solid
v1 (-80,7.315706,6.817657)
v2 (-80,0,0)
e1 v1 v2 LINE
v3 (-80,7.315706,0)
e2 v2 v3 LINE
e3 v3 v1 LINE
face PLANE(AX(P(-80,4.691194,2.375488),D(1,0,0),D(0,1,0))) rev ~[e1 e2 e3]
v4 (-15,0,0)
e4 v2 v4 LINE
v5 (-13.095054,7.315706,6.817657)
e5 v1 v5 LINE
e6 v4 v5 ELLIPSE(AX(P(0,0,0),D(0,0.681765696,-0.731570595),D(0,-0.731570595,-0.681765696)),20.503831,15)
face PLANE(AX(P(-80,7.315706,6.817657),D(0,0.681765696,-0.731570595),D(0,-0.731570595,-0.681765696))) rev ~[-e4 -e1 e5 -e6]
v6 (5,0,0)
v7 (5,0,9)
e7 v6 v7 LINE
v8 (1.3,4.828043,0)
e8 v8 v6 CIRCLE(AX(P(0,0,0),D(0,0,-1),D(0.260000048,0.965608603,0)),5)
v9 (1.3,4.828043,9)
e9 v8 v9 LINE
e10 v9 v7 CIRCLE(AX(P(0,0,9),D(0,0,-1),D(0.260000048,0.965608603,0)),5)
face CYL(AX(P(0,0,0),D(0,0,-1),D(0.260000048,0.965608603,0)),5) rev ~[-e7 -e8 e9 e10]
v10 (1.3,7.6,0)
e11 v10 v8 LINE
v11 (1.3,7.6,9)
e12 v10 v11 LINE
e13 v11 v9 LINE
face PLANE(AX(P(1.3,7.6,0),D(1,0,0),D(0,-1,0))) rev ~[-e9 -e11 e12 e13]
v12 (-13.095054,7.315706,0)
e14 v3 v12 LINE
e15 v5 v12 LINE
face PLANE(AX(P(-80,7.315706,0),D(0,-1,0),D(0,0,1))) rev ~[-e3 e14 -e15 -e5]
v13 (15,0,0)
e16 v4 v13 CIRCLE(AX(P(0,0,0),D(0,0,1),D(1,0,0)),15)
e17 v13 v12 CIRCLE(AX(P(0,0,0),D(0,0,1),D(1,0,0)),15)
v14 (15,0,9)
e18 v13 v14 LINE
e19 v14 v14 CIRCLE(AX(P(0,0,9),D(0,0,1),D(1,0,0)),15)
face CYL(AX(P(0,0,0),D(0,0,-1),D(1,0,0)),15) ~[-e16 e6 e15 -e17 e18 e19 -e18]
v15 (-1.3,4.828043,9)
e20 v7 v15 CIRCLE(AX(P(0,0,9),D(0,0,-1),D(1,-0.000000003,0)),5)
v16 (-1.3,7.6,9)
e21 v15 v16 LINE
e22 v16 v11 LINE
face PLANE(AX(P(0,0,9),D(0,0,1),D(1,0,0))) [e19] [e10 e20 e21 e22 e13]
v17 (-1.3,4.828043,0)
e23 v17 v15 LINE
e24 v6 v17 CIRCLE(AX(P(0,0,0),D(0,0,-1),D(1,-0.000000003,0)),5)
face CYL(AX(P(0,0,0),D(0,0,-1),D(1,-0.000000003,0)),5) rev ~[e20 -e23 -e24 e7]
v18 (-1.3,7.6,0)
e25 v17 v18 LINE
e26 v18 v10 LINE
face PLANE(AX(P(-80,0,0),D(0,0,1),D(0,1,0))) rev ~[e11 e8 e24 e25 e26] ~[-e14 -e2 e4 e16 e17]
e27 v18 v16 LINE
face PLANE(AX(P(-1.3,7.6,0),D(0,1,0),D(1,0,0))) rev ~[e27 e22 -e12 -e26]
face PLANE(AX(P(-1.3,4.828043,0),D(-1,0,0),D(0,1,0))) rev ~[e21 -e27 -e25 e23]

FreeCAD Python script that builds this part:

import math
import FreeCAD as App
import Part
import Sketcher
from FreeCAD import Vector
Q = App.Units.Quantity

doc = App.newDocument("Part")
body = doc.addObject("PartDesign::Body", "Body")

# Sketch on XY plane
sketch1 = body.newObject("Sketcher::SketchObject", "Sketch")
sketch1.AttachmentSupport = (doc.getObject("XY_Plane"), [""])
sketch1.MapMode = "FlatFace"
sketch1.addGeometry(Part.Circle(Vector(0, 0, 0), Vector(0, 0, 1), 15), False)
sketch1.addGeometry(Part.LineSegment(Vector(1.3, 7.6, 0), Vector(1.3, 4.8, 0)), False)
sketch1.addGeometry(Part.ArcOfCircle(Part.Circle(Vector(0, 0, 0), Vector(0, 0, 1), 5), math.radians(0), math.radians(75)), False)
sketch1.addGeometry(Part.ArcOfCircle(Part.Circle(Vector(0, 0, 0), Vector(0, 0, 1), 5), math.radians(105), math.radians(360)), False)
sketch1.addGeometry(Part.LineSegment(Vector(-1.3, 4.8, 0), Vector(-1.3, 7.6, 0)), False)
sketch1.addGeometry(Part.LineSegment(Vector(-1.3, 7.6, 0), Vector(1.3, 7.6, 0)), False)
sketch1.addConstraint(Sketcher.Constraint("Coincident", 1, 2, 2, 2))
sketch1.addConstraint(Sketcher.Constraint("Tangent", 2, 1, 3, 2))
sketch1.addConstraint(Sketcher.Constraint("Coincident", 3, 1, 4, 1))
sketch1.addConstraint(Sketcher.Constraint("Coincident", 4, 2, 5, 1))
sketch1.addConstraint(Sketcher.Constraint("Coincident", 5, 2, 1, 1))
sketch1.addConstraint(Sketcher.Constraint("Vertical", 1))
sketch1.addConstraint(Sketcher.Constraint("Vertical", 4))
sketch1.addConstraint(Sketcher.Constraint("Horizontal", 5))
sketch1.addConstraint(Sketcher.Constraint("Coincident", 0, 3, -1, 1))
sketch1.addConstraint(Sketcher.Constraint("Coincident", 2, 3, -1, 1))
sketch1.addConstraint(Sketcher.Constraint("Equal", 2, 3))
sketch1.addConstraint(Sketcher.Constraint("PointOnObject", 2, 1, -1))
sketch1.addConstraint(Sketcher.Constraint("Horizontal", 1, 2, 3, 1))
sketch1.addConstraint(Sketcher.Constraint("Diameter", 0, Q("30 mm")))
sketch1.addConstraint(Sketcher.Constraint("Radius", 2, Q("5 mm")))
sketch1.addConstraint(Sketcher.Constraint("DistanceX", 5, 1, 5, 2, Q("2.6 mm")))
sketch1.addConstraint(Sketcher.Constraint("DistanceY", -1, 1, 4, 2, Q("7.6 mm")))
pad1 = body.newObject("PartDesign::Pad", "Pad")
pad1.Profile = sketch1
pad1.Length = 9

# Sketch on YZ plane
sketch2 = body.newObject("Sketcher::SketchObject", "Sketch001")
sketch2.AttachmentSupport = (doc.getObject("YZ_Plane"), [""])
sketch2.MapMode = "FlatFace"
sketch2.AttachmentOffset = App.Placement(Vector(0, 0, -80), App.Rotation())
sketch2.addGeometry(Part.LineSegment(Vector(7, 7, 0), Vector(0, 0, 0)), False)
sketch2.addGeometry(Part.LineSegment(Vector(0, 0, 0), Vector(7, 0, 0)), False)
sketch2.addGeometry(Part.LineSegment(Vector(7, 0, 0), Vector(7, 7, 0)), False)
sketch2.addConstraint(Sketcher.Constraint("Coincident", 0, 2, 1, 1))
sketch2.addConstraint(Sketcher.Constraint("Coincident", 1, 2, 2, 1))
sketch2.addConstraint(Sketcher.Constraint("Coincident", 2, 2, 0, 1))
sketch2.addConstraint(Sketcher.Constraint("Horizontal", 1))
sketch2.addConstraint(Sketcher.Constraint("Vertical", 2))
sketch2.addConstraint(Sketcher.Constraint("Coincident", 0, 2, -1, 1))
sketch2.addConstraint(Sketcher.Constraint("Distance", 0, Q("10 mm")))
sketch2.addConstraint(Sketcher.Constraint("DistanceX", 1, 1, 1, 2, Q("7.315706 mm")))
pad2 = body.newObject("PartDesign::Pad", "Pad001")
pad2.Profile = sketch2
pad2.Length = 73

doc.recompute()
